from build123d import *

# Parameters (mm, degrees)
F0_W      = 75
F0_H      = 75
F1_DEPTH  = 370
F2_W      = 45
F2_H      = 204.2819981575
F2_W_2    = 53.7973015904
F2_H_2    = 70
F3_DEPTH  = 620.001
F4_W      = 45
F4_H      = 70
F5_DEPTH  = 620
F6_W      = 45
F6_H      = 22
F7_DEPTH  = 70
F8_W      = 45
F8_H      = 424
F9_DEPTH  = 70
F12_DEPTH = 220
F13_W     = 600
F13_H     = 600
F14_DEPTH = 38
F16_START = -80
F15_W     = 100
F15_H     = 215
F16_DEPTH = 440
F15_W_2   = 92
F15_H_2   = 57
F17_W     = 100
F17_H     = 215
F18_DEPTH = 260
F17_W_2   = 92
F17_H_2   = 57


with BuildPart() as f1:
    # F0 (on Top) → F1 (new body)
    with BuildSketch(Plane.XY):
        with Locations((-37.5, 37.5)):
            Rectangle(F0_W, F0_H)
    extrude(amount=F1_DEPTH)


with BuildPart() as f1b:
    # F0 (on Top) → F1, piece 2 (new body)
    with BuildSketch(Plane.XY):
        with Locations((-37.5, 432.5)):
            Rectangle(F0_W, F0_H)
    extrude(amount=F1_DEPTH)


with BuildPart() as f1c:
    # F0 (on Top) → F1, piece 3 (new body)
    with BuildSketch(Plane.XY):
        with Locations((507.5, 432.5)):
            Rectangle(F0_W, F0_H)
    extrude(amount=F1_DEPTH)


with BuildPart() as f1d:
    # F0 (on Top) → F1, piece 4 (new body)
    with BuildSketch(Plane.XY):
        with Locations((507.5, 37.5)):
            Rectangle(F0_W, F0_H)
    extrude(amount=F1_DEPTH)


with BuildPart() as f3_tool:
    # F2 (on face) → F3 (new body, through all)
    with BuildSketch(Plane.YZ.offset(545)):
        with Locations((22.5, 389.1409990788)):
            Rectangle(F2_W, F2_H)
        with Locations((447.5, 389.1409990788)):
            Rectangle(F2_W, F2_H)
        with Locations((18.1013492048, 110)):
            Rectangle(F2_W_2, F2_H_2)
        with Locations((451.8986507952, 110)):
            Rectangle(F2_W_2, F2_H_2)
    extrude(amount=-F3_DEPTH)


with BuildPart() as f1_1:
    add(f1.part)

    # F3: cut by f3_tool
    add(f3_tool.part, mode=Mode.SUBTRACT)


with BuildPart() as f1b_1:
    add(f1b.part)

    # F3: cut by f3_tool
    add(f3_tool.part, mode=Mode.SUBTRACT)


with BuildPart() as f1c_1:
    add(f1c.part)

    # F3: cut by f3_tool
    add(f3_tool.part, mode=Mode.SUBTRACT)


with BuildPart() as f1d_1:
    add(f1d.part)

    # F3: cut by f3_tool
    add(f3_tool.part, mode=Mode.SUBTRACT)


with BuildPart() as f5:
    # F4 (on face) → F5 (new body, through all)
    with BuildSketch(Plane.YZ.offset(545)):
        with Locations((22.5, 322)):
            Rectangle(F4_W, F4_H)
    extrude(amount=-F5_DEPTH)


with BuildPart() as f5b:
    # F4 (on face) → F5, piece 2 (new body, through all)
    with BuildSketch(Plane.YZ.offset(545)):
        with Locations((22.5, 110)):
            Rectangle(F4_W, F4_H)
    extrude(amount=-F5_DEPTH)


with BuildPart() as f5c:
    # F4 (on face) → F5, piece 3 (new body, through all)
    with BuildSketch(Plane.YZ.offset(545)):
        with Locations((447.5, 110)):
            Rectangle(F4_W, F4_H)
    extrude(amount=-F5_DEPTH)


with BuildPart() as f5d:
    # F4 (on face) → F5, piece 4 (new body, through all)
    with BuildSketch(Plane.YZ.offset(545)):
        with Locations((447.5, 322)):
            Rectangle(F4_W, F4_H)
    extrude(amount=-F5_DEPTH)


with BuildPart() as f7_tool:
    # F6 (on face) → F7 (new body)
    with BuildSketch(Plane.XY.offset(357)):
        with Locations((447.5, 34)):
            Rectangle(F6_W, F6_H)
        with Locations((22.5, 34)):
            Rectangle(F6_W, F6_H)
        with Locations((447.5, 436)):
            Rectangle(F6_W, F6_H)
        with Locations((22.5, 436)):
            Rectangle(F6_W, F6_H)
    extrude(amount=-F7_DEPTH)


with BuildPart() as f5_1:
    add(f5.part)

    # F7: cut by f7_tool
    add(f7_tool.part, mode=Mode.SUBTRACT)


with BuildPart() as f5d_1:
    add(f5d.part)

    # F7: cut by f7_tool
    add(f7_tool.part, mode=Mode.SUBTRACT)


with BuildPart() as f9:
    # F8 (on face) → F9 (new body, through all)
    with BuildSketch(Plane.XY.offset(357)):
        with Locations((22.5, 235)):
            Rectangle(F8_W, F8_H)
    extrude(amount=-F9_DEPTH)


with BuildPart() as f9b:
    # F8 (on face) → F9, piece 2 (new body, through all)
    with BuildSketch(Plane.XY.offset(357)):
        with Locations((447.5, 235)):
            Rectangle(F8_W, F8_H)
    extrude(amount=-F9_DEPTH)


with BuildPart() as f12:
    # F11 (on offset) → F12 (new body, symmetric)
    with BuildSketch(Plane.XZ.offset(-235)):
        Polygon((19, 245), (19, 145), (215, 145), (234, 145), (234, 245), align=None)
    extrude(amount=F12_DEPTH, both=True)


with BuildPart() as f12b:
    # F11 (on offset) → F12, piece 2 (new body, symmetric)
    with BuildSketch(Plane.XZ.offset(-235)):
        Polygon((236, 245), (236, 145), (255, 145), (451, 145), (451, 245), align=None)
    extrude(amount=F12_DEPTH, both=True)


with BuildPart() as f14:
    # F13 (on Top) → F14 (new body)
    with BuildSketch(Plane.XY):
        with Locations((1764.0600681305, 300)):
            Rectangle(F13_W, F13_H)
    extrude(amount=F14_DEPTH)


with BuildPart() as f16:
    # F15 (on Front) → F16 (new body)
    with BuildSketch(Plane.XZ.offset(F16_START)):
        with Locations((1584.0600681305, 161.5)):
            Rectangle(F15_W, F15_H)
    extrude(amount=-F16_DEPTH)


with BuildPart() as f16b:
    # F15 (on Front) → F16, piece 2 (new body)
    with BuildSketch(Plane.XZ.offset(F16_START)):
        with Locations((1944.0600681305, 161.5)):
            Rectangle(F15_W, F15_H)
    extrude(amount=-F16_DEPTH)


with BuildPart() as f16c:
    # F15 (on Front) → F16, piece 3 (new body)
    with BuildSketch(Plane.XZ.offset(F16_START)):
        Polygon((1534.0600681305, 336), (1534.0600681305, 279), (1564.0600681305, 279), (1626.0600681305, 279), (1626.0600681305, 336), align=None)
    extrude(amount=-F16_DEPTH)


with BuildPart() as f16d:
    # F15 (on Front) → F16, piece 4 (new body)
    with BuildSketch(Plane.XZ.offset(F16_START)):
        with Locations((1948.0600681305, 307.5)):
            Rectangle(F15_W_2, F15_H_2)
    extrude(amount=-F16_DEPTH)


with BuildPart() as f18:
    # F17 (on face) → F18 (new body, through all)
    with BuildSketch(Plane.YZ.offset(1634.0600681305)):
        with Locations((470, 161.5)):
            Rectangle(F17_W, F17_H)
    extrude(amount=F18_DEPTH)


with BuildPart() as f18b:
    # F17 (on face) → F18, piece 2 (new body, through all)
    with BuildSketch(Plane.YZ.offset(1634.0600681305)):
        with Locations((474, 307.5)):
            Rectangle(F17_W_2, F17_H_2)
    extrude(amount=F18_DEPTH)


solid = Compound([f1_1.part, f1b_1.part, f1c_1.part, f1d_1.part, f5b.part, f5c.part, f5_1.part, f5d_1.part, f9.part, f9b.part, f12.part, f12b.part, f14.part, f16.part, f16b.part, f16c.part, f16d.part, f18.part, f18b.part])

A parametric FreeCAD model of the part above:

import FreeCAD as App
import Part
import Sketcher
from FreeCAD import Vector
Q = App.Units.Quantity


def add_polygon(sketch, points):
    """Adds a closed chain of lines whose ends are joined by coincident constraints."""
    first, n = sketch.GeometryCount, len(points)
    for a, b in zip(points, points[1:] + points[:1]):
        sketch.addGeometry(Part.LineSegment(App.Vector(*a, 0), App.Vector(*b, 0)), False)
    for i in range(n):
        sketch.addConstraint(Sketcher.Constraint("Coincident", first + i, 2, first + (i + 1) % n, 1))

doc = App.newDocument("Part")
body = doc.addObject("PartDesign::Body", "Body")

# Sketch on XY plane
sketch1 = body.newObject("Sketcher::SketchObject", "Sketch")
sketch1.AttachmentSupport = (doc.getObject("XY_Plane"), [""])
sketch1.MapMode = "FlatFace"
add_polygon(sketch1, [(-75, 75), (-75, 0), (0, 0), (0, 75)])  # lines 0-3
sketch1.addConstraint(Sketcher.Constraint("Vertical", 0))
sketch1.addConstraint(Sketcher.Constraint("Horizontal", 1))
sketch1.addConstraint(Sketcher.Constraint("Vertical", 2))
sketch1.addConstraint(Sketcher.Constraint("Horizontal", 3))
sketch1.addConstraint(Sketcher.Constraint("Coincident", 1, 2, -1, 1))
sketch1.addConstraint(Sketcher.Constraint("Equal", 3, 0))
sketch1.addConstraint(Sketcher.Constraint("DistanceX", 1, 1, 1, 2, Q("75 mm")))
pad1 = body.newObject("PartDesign::Pad", "Pad")
pad1.Profile = sketch1
pad1.Length = 370
body2 = doc.addObject("PartDesign::Body", "Body001")

# Sketch on XY plane
sketch2 = body2.newObject("Sketcher::SketchObject", "Sketch001")
sketch2.AttachmentSupport = (doc.getObject("XY_Plane001"), [""])
sketch2.MapMode = "FlatFace"
add_polygon(sketch2, [(-75, 470), (-75, 395), (0, 395), (0, 470)])  # lines 0-3
sketch2.addConstraint(Sketcher.Constraint("Vertical", 0))
sketch2.addConstraint(Sketcher.Constraint("Horizontal", 1))
sketch2.addConstraint(Sketcher.Constraint("Vertical", 2))
sketch2.addConstraint(Sketcher.Constraint("Horizontal", 3))
sketch2.addConstraint(Sketcher.Constraint("PointOnObject", 1, 2, -2))
sketch2.addConstraint(Sketcher.Constraint("Equal", 3, 0))
sketch2.addConstraint(Sketcher.Constraint("DistanceX", 1, 1, 1, 2, Q("75 mm")))
sketch2.addConstraint(Sketcher.Constraint("DistanceY", -1, 1, 0, 2, Q("395 mm")))
pad2 = body2.newObject("PartDesign::Pad", "Pad001")
pad2.Profile = sketch2
pad2.Length = 370
body3 = doc.addObject("PartDesign::Body", "Body002")

# Sketch on XY plane
sketch3 = body3.newObject("Sketcher::SketchObject", "Sketch002")
sketch3.AttachmentSupport = (doc.getObject("XY_Plane002"), [""])
sketch3.MapMode = "FlatFace"
add_polygon(sketch3, [(470, 470), (470, 395), (545, 395), (545, 470)])  # lines 0-3
sketch3.addConstraint(Sketcher.Constraint("Vertical", 0))
sketch3.addConstraint(Sketcher.Constraint("Horizontal", 1))
sketch3.addConstraint(Sketcher.Constraint("Vertical", 2))
sketch3.addConstraint(Sketcher.Constraint("Horizontal", 3))
sketch3.addConstraint(Sketcher.Constraint("Equal", 3, 0))
sketch3.addConstraint(Sketcher.Constraint("DistanceX", 1, 1, 1, 2, Q("75 mm")))
sketch3.addConstraint(Sketcher.Constraint("DistanceX", -1, 1, 0, 2, Q("470 mm")))
sketch3.addConstraint(Sketcher.Constraint("DistanceY", -1, 1, 0, 2, Q("395 mm")))
pad3 = body3.newObject("PartDesign::Pad", "Pad002")
pad3.Profile = sketch3
pad3.Length = 370
body4 = doc.addObject("PartDesign::Body", "Body003")

# Sketch on XY plane
sketch4 = body4.newObject("Sketcher::SketchObject", "Sketch003")
sketch4.AttachmentSupport = (doc.getObject("XY_Plane003"), [""])
sketch4.MapMode = "FlatFace"
add_polygon(sketch4, [(470, 75), (470, 0), (545, 0), (545, 75)])  # lines 0-3
sketch4.addConstraint(Sketcher.Constraint("Vertical", 0))
sketch4.addConstraint(Sketcher.Constraint("Horizontal", 1))
sketch4.addConstraint(Sketcher.Constraint("Vertical", 2))
sketch4.addConstraint(Sketcher.Constraint("Horizontal", 3))
sketch4.addConstraint(Sketcher.Constraint("PointOnObject", 0, 2, -1))
sketch4.addConstraint(Sketcher.Constraint("Equal", 3, 0))
sketch4.addConstraint(Sketcher.Constraint("DistanceX", 1, 1, 1, 2, Q("75 mm")))
sketch4.addConstraint(Sketcher.Constraint("DistanceX", -1, 1, 0, 2, Q("470 mm")))
pad4 = body4.newObject("PartDesign::Pad", "Pad003")
pad4.Profile = sketch4
pad4.Length = 370
body5 = doc.addObject("PartDesign::Body", "Body004")
body5.AllowCompound = True

# Sketch on YZ plane
sketch5 = body5.newObject("Sketcher::SketchObject", "Sketch004")
sketch5.AttachmentSupport = (doc.getObject("YZ_Plane004"), [""])
sketch5.MapMode = "FlatFace"
sketch5.AttachmentOffset = App.Placement(Vector(0, 0, 545), App.Rotation())
add_polygon(sketch5, [(0, 491), (0, 287), (45, 287), (45, 491)])  # lines 0-3
add_polygon(sketch5, [(425, 491), (425, 287), (470, 287), (470, 491)])  # lines 4-7
add_polygon(sketch5, [(-9, 145), (-9, 75), (45, 75), (45, 145)])  # lines 8-11
add_polygon(sketch5, [(425, 145), (425, 75), (479, 75), (479, 145)])  # lines 12-15
sketch5.addConstraint(Sketcher.Constraint("Vertical", 0))
sketch5.addConstraint(Sketcher.Constraint("Horizontal", 1))
sketch5.addConstraint(Sketcher.Constraint("Vertical", 2))
sketch5.addConstraint(Sketcher.Constraint("Horizontal", 3))
sketch5.addConstraint(Sketcher.Constraint("Vertical", 4))
sketch5.addConstraint(Sketcher.Constraint("Horizontal", 5))
sketch5.addConstraint(Sketcher.Constraint("Vertical", 6))
sketch5.addConstraint(Sketcher.Constraint("Horizontal", 7))
sketch5.addConstraint(Sketcher.Constraint("Vertical", 8))
sketch5.addConstraint(Sketcher.Constraint("Horizontal", 9))
sketch5.addConstraint(Sketcher.Constraint("Vertical", 10))
sketch5.addConstraint(Sketcher.Constraint("Horizontal", 11))
sketch5.addConstraint(Sketcher.Constraint("Vertical", 12))
sketch5.addConstraint(Sketcher.Constraint("Horizontal", 13))
sketch5.addConstraint(Sketcher.Constraint("Vertical", 14))
sketch5.addConstraint(Sketcher.Constraint("Horizontal", 15))
sketch5.addConstraint(Sketcher.Constraint("PointOnObject", 0, 2, -2))
sketch5.addConstraint(Sketcher.Constraint("Horizontal", 1, 2, 4, 2))
sketch5.addConstraint(Sketcher.Constraint("Horizontal", 3, 2, 6, 2))
sketch5.addConstraint(Sketcher.Constraint("Horizontal", 9, 2, 12, 2))
sketch5.addConstraint(Sketcher.Constraint("Horizontal", 11, 2, 14, 2))
sketch5.addConstraint(Sketcher.Constraint("Vertical", 2, 2, 9, 2))
sketch5.addConstraint(Sketcher.Constraint("Vertical", 7, 2, 12, 2))
sketch5.addConstraint(Sketcher.Constraint("Equal", 3, 5))
sketch5.addConstraint(Sketcher.Constraint("Equal", 11, 13))
sketch5.addConstraint(Sketcher.Constraint("DistanceX", 1, 1, 1, 2, Q("45 mm")))
sketch5.addConstraint(Sketcher.Constraint("DistanceY", 8, 2, 8, 1, Q("70 mm")))
sketch5.addConstraint(Sketcher.Constraint("DistanceY", -1, 1, 0, 2, Q("287 mm")))
sketch5.addConstraint(Sketcher.Constraint("DistanceX", -1, 1, 4, 2, Q("425 mm")))
sketch5.addConstraint(Sketcher.Constraint("DistanceY", -1, 1, 8, 2, Q("75 mm")))
sketch5.addConstraint(Sketcher.Constraint("DistanceY", 0, 2, 0, 1, Q("204.281998 mm")))
sketch5.addConstraint(Sketcher.Constraint("DistanceX", 9, 1, 9, 2, Q("53.797302 mm")))
pad5 = body5.newObject("PartDesign::Pad", "Pad004")
pad5.Profile = sketch5
pad5.Length = 620.001
pad5.Reversed = True
doc.recompute()

body6 = doc.addObject("PartDesign::Body", "Body005")
body6.BaseFeature = body5
boolean = body.newObject("PartDesign::Boolean", "Boolean")
boolean.Type = "Cut"
boolean.addObjects([body6])
doc.recompute()

body7 = doc.addObject("PartDesign::Body", "Body006")
body7.BaseFeature = body5
boolean2 = body2.newObject("PartDesign::Boolean", "Boolean001")
boolean2.Type = "Cut"
boolean2.addObjects([body7])
doc.recompute()

body8 = doc.addObject("PartDesign::Body", "Body007")
body8.BaseFeature = body5
boolean3 = body3.newObject("PartDesign::Boolean", "Boolean002")
boolean3.Type = "Cut"
boolean3.addObjects([body8])
doc.recompute()

boolean4 = body4.newObject("PartDesign::Boolean", "Boolean003")
boolean4.Type = "Cut"
boolean4.addObjects([body5])
body9 = doc.addObject("PartDesign::Body", "Body008")

# Sketch on YZ plane
sketch6 = body9.newObject("Sketcher::SketchObject", "Sketch005")
sketch6.AttachmentSupport = (doc.getObject("YZ_Plane008"), [""])
sketch6.MapMode = "FlatFace"
sketch6.AttachmentOffset = App.Placement(Vector(0, 0, 545), App.Rotation())
add_polygon(sketch6, [(0, 357), (0, 287), (45, 287), (45, 357)])  # lines 0-3
sketch6.addConstraint(Sketcher.Constraint("Vertical", 0))
sketch6.addConstraint(Sketcher.Constraint("Horizontal", 1))
sketch6.addConstraint(Sketcher.Constraint("Vertical", 2))
sketch6.addConstraint(Sketcher.Constraint("Horizontal", 3))
sketch6.addConstraint(Sketcher.Constraint("PointOnObject", 0, 2, -2))
sketch6.addConstraint(Sketcher.Constraint("DistanceX", 1, 1, 1, 2, Q("45 mm")))
sketch6.addConstraint(Sketcher.Constraint("DistanceY", 0, 2, 0, 1, Q("70 mm")))
sketch6.addConstraint(Sketcher.Constraint("DistanceY", -1, 1, 0, 2, Q("287 mm")))
pad6 = body9.newObject("PartDesign::Pad", "Pad005")
pad6.Profile = sketch6
pad6.Length = 620
pad6.Reversed = True
body10 = doc.addObject("PartDesign::Body", "Body009")

# Sketch on YZ plane
sketch7 = body10.newObject("Sketcher::SketchObject", "Sketch006")
sketch7.AttachmentSupport = (doc.getObject("YZ_Plane009"), [""])
sketch7.MapMode = "FlatFace"
sketch7.AttachmentOffset = App.Placement(Vector(0, 0, 545), App.Rotation())
add_polygon(sketch7, [(0, 145), (0, 75), (45, 75), (45, 145)])  # lines 0-3
sketch7.addConstraint(Sketcher.Constraint("Vertical", 0))
sketch7.addConstraint(Sketcher.Constraint("Horizontal", 1))
sketch7.addConstraint(Sketcher.Constraint("Vertical", 2))
sketch7.addConstraint(Sketcher.Constraint("Horizontal", 3))
sketch7.addConstraint(Sketcher.Constraint("PointOnObject", 0, 2, -2))
sketch7.addConstraint(Sketcher.Constraint("DistanceX", 1, 1, 1, 2, Q("45 mm")))
sketch7.addConstraint(Sketcher.Constraint("DistanceY", 0, 2, 0, 1, Q("70 mm")))
sketch7.addConstraint(Sketcher.Constraint("DistanceY", -1, 1, 0, 2, Q("75 mm")))
pad7 = body10.newObject("PartDesign::Pad", "Pad006")
pad7.Profile = sketch7
pad7.Length = 620
pad7.Reversed = True
body11 = doc.addObject("PartDesign::Body", "Body010")

# Sketch on YZ plane
sketch8 = body11.newObject("Sketcher::SketchObject", "Sketch007")
sketch8.AttachmentSupport = (doc.getObject("YZ_Plane010"), [""])
sketch8.MapMode = "FlatFace"
sketch8.AttachmentOffset = App.Placement(Vector(0, 0, 545), App.Rotation())
add_polygon(sketch8, [(425, 145), (425, 75), (470, 75), (470, 145)])  # lines 0-3
sketch8.addConstraint(Sketcher.Constraint("Vertical", 0))
sketch8.addConstraint(Sketcher.Constraint("Horizontal", 1))
sketch8.addConstraint(Sketcher.Constraint("Vertical", 2))
sketch8.addConstraint(Sketcher.Constraint("Horizontal", 3))
sketch8.addConstraint(Sketcher.Constraint("DistanceX", 1, 1, 1, 2, Q("45 mm")))
sketch8.addConstraint(Sketcher.Constraint("DistanceY", 0, 2, 0, 1, Q("70 mm")))
sketch8.addConstraint(Sketcher.Constraint("DistanceX", -1, 1, 0, 2, Q("425 mm")))
sketch8.addConstraint(Sketcher.Constraint("DistanceY", -1, 1, 0, 2, Q("75 mm")))
pad8 = body11.newObject("PartDesign::Pad", "Pad007")
pad8.Profile = sketch8
pad8.Length = 620
pad8.Reversed = True
body12 = doc.addObject("PartDesign::Body", "Body011")

# Sketch on YZ plane
sketch9 = body12.newObject("Sketcher::SketchObject", "Sketch008")
sketch9.AttachmentSupport = (doc.getObject("YZ_Plane011"), [""])
sketch9.MapMode = "FlatFace"
sketch9.AttachmentOffset = App.Placement(Vector(0, 0, 545), App.Rotation())
add_polygon(sketch9, [(425, 357), (425, 287), (470, 287), (470, 357)])  # lines 0-3
sketch9.addConstraint(Sketcher.Constraint("Vertical", 0))
sketch9.addConstraint(Sketcher.Constraint("Horizontal", 1))
sketch9.addConstraint(Sketcher.Constraint("Vertical", 2))
sketch9.addConstraint(Sketcher.Constraint("Horizontal", 3))
sketch9.addConstraint(Sketcher.Constraint("DistanceX", 1, 1, 1, 2, Q("45 mm")))
sketch9.addConstraint(Sketcher.Constraint("DistanceY", 0, 2, 0, 1, Q("70 mm")))
sketch9.addConstraint(Sketcher.Constraint("DistanceX", -1, 1, 0, 2, Q("425 mm")))
sketch9.addConstraint(Sketcher.Constraint("DistanceY", -1, 1, 0, 2, Q("287 mm")))
pad9 = body12.newObject("PartDesign::Pad", "Pad008")
pad9.Profile = sketch9
pad9.Length = 620
pad9.Reversed = True
body13 = doc.addObject("PartDesign::Body", "Body012")
body13.AllowCompound = True

# Sketch on XY plane
sketch10 = body13.newObject("Sketcher::SketchObject", "Sketch009")
sketch10.AttachmentSupport = (doc.getObject("XY_Plane012"), [""])
sketch10.MapMode = "FlatFace"
sketch10.AttachmentOffset = App.Placement(Vector(0, 0, 357), App.Rotation())
add_polygon(sketch10, [(425, 45), (425, 23), (470, 23), (470, 45)])  # lines 0-3
add_polygon(sketch10, [(0, 45), (0, 23), (45, 23), (45, 45)])  # lines 4-7
add_polygon(sketch10, [(425, 447), (425, 425), (470, 425), (470, 447)])  # lines 8-11
add_polygon(sketch10, [(0, 447), (0, 425), (45, 425), (45, 447)])  # lines 12-15
sketch10.addConstraint(Sketcher.Constraint("Vertical", 0))
sketch10.addConstraint(Sketcher.Constraint("Horizontal", 1))
sketch10.addConstraint(Sketcher.Constraint("Vertical", 2))
sketch10.addConstraint(Sketcher.Constraint("Horizontal", 3))
sketch10.addConstraint(Sketcher.Constraint("Vertical", 4))
sketch10.addConstraint(Sketcher.Constraint("Horizontal", 5))
sketch10.addConstraint(Sketcher.Constraint("Vertical", 6))
sketch10.addConstraint(Sketcher.Constraint("Horizontal", 7))
sketch10.addConstraint(Sketcher.Constraint("Vertical", 8))
sketch10.addConstraint(Sketcher.Constraint("Horizontal", 9))
sketch10.addConstraint(Sketcher.Constraint("Vertical", 10))
sketch10.addConstraint(Sketcher.Constraint("Horizontal", 11))
sketch10.addConstraint(Sketcher.Constraint("Vertical", 12))
sketch10.addConstraint(Sketcher.Constraint("Horizontal", 13))
sketch10.addConstraint(Sketcher.Constraint("Vertical", 14))
sketch10.addConstraint(Sketcher.Constraint("Horizontal", 15))
sketch10.addConstraint(Sketcher.Constraint("PointOnObject", 4, 2, -2))
sketch10.addConstraint(Sketcher.Constraint("PointOnObject", 12, 2, -2))
sketch10.addConstraint(Sketcher.Constraint("Horizontal", 1, 2, 4, 2))
sketch10.addConstraint(Sketcher.Constraint("Horizontal", 3, 2, 6, 2))
sketch10.addConstraint(Sketcher.Constraint("Horizontal", 9, 2, 12, 2))
sketch10.addConstraint(Sketcher.Constraint("Horizontal", 11, 2, 14, 2))
sketch10.addConstraint(Sketcher.Constraint("Vertical", 3, 2, 8, 2))
sketch10.addConstraint(Sketcher.Constraint("Vertical", 2, 2, 9, 2))
sketch10.addConstraint(Sketcher.Constraint("Vertical", 6, 2, 13, 2))
sketch10.addConstraint(Sketcher.Constraint("Equal", 3, 5))
sketch10.addConstraint(Sketcher.Constraint("Equal", 6, 8))
sketch10.addConstraint(Sketcher.Constraint("DistanceX", 1, 1, 1, 2, Q("45 mm")))
sketch10.addConstraint(Sketcher.Constraint("DistanceY", 0, 2, 0, 1, Q("22 mm")))
sketch10.addConstraint(Sketcher.Constraint("DistanceX", -1, 1, 0, 2, Q("425 mm")))
sketch10.addConstraint(Sketcher.Constraint("DistanceY", -1, 1, 0, 2, Q("23 mm")))
sketch10.addConstraint(Sketcher.Constraint("DistanceY", -1, 1, 8, 2, Q("425 mm")))
pad10 = body13.newObject("PartDesign::Pad", "Pad009")
pad10.Profile = sketch10
pad10.Length = 70
pad10.Reversed = True
doc.recompute()

body14 = doc.addObject("PartDesign::Body", "Body013")
body14.BaseFeature = body13
boolean5 = body9.newObject("PartDesign::Boolean", "Boolean004")
boolean5.Type = "Cut"
boolean5.addObjects([body14])
doc.recompute()

boolean6 = body12.newObject("PartDesign::Boolean", "Boolean005")
boolean6.Type = "Cut"
boolean6.addObjects([body13])
body15 = doc.addObject("PartDesign::Body", "Body014")

# Sketch on XY plane
sketch11 = body15.newObject("Sketcher::SketchObject", "Sketch010")
sketch11.AttachmentSupport = (doc.getObject("XY_Plane014"), [""])
sketch11.MapMode = "FlatFace"
sketch11.AttachmentOffset = App.Placement(Vector(0, 0, 357), App.Rotation())
add_polygon(sketch11, [(0, 447), (0, 23), (45, 23), (45, 447)])  # lines 0-3
sketch11.addConstraint(Sketcher.Constraint("Vertical", 0))
sketch11.addConstraint(Sketcher.Constraint("Horizontal", 1))
sketch11.addConstraint(Sketcher.Constraint("Vertical", 2))
sketch11.addConstraint(Sketcher.Constraint("Horizontal", 3))
sketch11.addConstraint(Sketcher.Constraint("PointOnObject", 0, 2, -2))
sketch11.addConstraint(Sketcher.Constraint("DistanceX", 1, 1, 1, 2, Q("45 mm")))
sketch11.addConstraint(Sketcher.Constraint("DistanceY", 0, 2, 0, 1, Q("424 mm")))
sketch11.addConstraint(Sketcher.Constraint("DistanceY", -1, 1, 0, 2, Q("23 mm")))
pad11 = body15.newObject("PartDesign::Pad", "Pad010")
pad11.Profile = sketch11
pad11.Length = 70
pad11.Reversed = True
body16 = doc.addObject("PartDesign::Body", "Body015")

# Sketch on XY plane
sketch12 = body16.newObject("Sketcher::SketchObject", "Sketch011")
sketch12.AttachmentSupport = (doc.getObject("XY_Plane015"), [""])
sketch12.MapMode = "FlatFace"
sketch12.AttachmentOffset = App.Placement(Vector(0, 0, 357), App.Rotation())
add_polygon(sketch12, [(425, 447), (425, 23), (470, 23), (470, 447)])  # lines 0-3
sketch12.addConstraint(Sketcher.Constraint("Vertical", 0))
sketch12.addConstraint(Sketcher.Constraint("Horizontal", 1))
sketch12.addConstraint(Sketcher.Constraint("Vertical", 2))
sketch12.addConstraint(Sketcher.Constraint("Horizontal", 3))
sketch12.addConstraint(Sketcher.Constraint("DistanceX", 1, 1, 1, 2, Q("45 mm")))
sketch12.addConstraint(Sketcher.Constraint("DistanceY", 0, 2, 0, 1, Q("424 mm")))
sketch12.addConstraint(Sketcher.Constraint("DistanceX", -1, 1, 0, 2, Q("425 mm")))
sketch12.addConstraint(Sketcher.Constraint("DistanceY", -1, 1, 0, 2, Q("23 mm")))
pad12 = body16.newObject("PartDesign::Pad", "Pad011")
pad12.Profile = sketch12
pad12.Length = 70
pad12.Reversed = True
body17 = doc.addObject("PartDesign::Body", "Body016")

# Sketch on XZ plane
sketch13 = body17.newObject("Sketcher::SketchObject", "Sketch012")
sketch13.AttachmentSupport = (doc.getObject("XZ_Plane016"), [""])
sketch13.MapMode = "FlatFace"
sketch13.AttachmentOffset = App.Placement(Vector(0, 0, -235), App.Rotation())
add_polygon(sketch13, [(19, 245), (19, 145), (234, 145), (234, 245)])  # lines 0-3
sketch13.addConstraint(Sketcher.Constraint("Vertical", 0))
sketch13.addConstraint(Sketcher.Constraint("Horizontal", 1))
sketch13.addConstraint(Sketcher.Constraint("Vertical", 2))
sketch13.addConstraint(Sketcher.Constraint("Horizontal", 3))
sketch13.addConstraint(Sketcher.Constraint("DistanceX", 1, 1, 1, 2, Q("215 mm")))
sketch13.addConstraint(Sketcher.Constraint("DistanceY", 0, 2, 0, 1, Q("100 mm")))
sketch13.addConstraint(Sketcher.Constraint("DistanceX", -1, 1, 0, 2, Q("19 mm")))
sketch13.addConstraint(Sketcher.Constraint("DistanceY", -1, 1, 0, 2, Q("145 mm")))
pad13 = body17.newObject("PartDesign::Pad", "Pad012")
pad13.Profile = sketch13
pad13.Length = 440
pad13.Midplane = True
body18 = doc.addObject("PartDesign::Body", "Body017")

# Sketch on XZ plane
sketch14 = body18.newObject("Sketcher::SketchObject", "Sketch013")
sketch14.AttachmentSupport = (doc.getObject("XZ_Plane017"), [""])
sketch14.MapMode = "FlatFace"
sketch14.AttachmentOffset = App.Placement(Vector(0, 0, -235), App.Rotation())
add_polygon(sketch14, [(236, 245), (236, 145), (451, 145), (451, 245)])  # lines 0-3
sketch14.addConstraint(Sketcher.Constraint("Vertical", 0))
sketch14.addConstraint(Sketcher.Constraint("Horizontal", 1))
sketch14.addConstraint(Sketcher.Constraint("Vertical", 2))
sketch14.addConstraint(Sketcher.Constraint("Horizontal", 3))
sketch14.addConstraint(Sketcher.Constraint("DistanceX", 1, 1, 1, 2, Q("215 mm")))
sketch14.addConstraint(Sketcher.Constraint("DistanceY", 0, 2, 0, 1, Q("100 mm")))
sketch14.addConstraint(Sketcher.Constraint("DistanceX", -1, 1, 0, 2, Q("236 mm")))
sketch14.addConstraint(Sketcher.Constraint("DistanceY", -1, 1, 0, 2, Q("145 mm")))
pad14 = body18.newObject("PartDesign::Pad", "Pad013")
pad14.Profile = sketch14
pad14.Length = 440
pad14.Midplane = True
body19 = doc.addObject("PartDesign::Body", "Body018")

# Sketch on XY plane
sketch15 = body19.newObject("Sketcher::SketchObject", "Sketch014")
sketch15.AttachmentSupport = (doc.getObject("XY_Plane018"), [""])
sketch15.MapMode = "FlatFace"
add_polygon(sketch15, [(1464, 600), (1464, 0), (2064, 0), (2064, 600)])  # lines 0-3
sketch15.addConstraint(Sketcher.Constraint("Vertical", 0))
sketch15.addConstraint(Sketcher.Constraint("Horizontal", 1))
sketch15.addConstraint(Sketcher.Constraint("Vertical", 2))
sketch15.addConstraint(Sketcher.Constraint("Horizontal", 3))
sketch15.addConstraint(Sketcher.Constraint("PointOnObject", 0, 2, -1))
sketch15.addConstraint(Sketcher.Constraint("Equal", 3, 0))
sketch15.addConstraint(Sketcher.Constraint("DistanceX", 1, 1, 1, 2, Q("600 mm")))
sketch15.addConstraint(Sketcher.Constraint("DistanceX", -1, 1, 0, 2, Q("1464.060068 mm")))
pad15 = body19.newObject("PartDesign::Pad", "Pad014")
pad15.Profile = sketch15
pad15.Length = 38
body20 = doc.addObject("PartDesign::Body", "Body019")

# Sketch on XZ plane
sketch16 = body20.newObject("Sketcher::SketchObject", "Sketch015")
sketch16.AttachmentSupport = (doc.getObject("XZ_Plane019"), [""])
sketch16.MapMode = "FlatFace"
sketch16.AttachmentOffset = App.Placement(Vector(0, 0, -80), App.Rotation())
add_polygon(sketch16, [(1534, 269), (1534, 54), (1634, 54), (1634, 269)])  # lines 0-3
sketch16.addConstraint(Sketcher.Constraint("Vertical", 0))
sketch16.addConstraint(Sketcher.Constraint("Horizontal", 1))
sketch16.addConstraint(Sketcher.Constraint("Vertical", 2))
sketch16.addConstraint(Sketcher.Constraint("Horizontal", 3))
sketch16.addConstraint(Sketcher.Constraint("DistanceX", 1, 1, 1, 2, Q("100 mm")))
sketch16.addConstraint(Sketcher.Constraint("DistanceY", 0, 2, 0, 1, Q("215 mm")))
sketch16.addConstraint(Sketcher.Constraint("DistanceY", -1, 1, 0, 2, Q("54 mm")))
sketch16.addConstraint(Sketcher.Constraint("DistanceX", -1, 1, 0, 2, Q("1534.060068 mm")))
pad16 = body20.newObject("PartDesign::Pad", "Pad015")
pad16.Profile = sketch16
pad16.Length = 440
pad16.Reversed = True
body21 = doc.addObject("PartDesign::Body", "Body020")

# Sketch on XZ plane
sketch17 = body21.newObject("Sketcher::SketchObject", "Sketch016")
sketch17.AttachmentSupport = (doc.getObject("XZ_Plane020"), [""])
sketch17.MapMode = "FlatFace"
sketch17.AttachmentOffset = App.Placement(Vector(0, 0, -80), App.Rotation())
add_polygon(sketch17, [(1894, 269), (1894, 54), (1994, 54), (1994, 269)])  # lines 0-3
sketch17.addConstraint(Sketcher.Constraint("Vertical", 0))
sketch17.addConstraint(Sketcher.Constraint("Horizontal", 1))
sketch17.addConstraint(Sketcher.Constraint("Vertical", 2))
sketch17.addConstraint(Sketcher.Constraint("Horizontal", 3))
sketch17.addConstraint(Sketcher.Constraint("DistanceX", 1, 1, 1, 2, Q("100 mm")))
sketch17.addConstraint(Sketcher.Constraint("DistanceY", 0, 2, 0, 1, Q("215 mm")))
sketch17.addConstraint(Sketcher.Constraint("DistanceY", -1, 1, 0, 2, Q("54 mm")))
sketch17.addConstraint(Sketcher.Constraint("DistanceX", -1, 1, 0, 2, Q("1894.060068 mm")))
pad17 = body21.newObject("PartDesign::Pad", "Pad016")
pad17.Profile = sketch17
pad17.Length = 440
pad17.Reversed = True
body22 = doc.addObject("PartDesign::Body", "Body021")

# Sketch on XZ plane
sketch18 = body22.newObject("Sketcher::SketchObject", "Sketch017")
sketch18.AttachmentSupport = (doc.getObject("XZ_Plane021"), [""])
sketch18.MapMode = "FlatFace"
sketch18.AttachmentOffset = App.Placement(Vector(0, 0, -80), App.Rotation())
add_polygon(sketch18, [(1534, 336), (1534, 279), (1626, 279), (1626, 336)])  # lines 0-3
sketch18.addConstraint(Sketcher.Constraint("Vertical", 0))
sketch18.addConstraint(Sketcher.Constraint("Horizontal", 1))
sketch18.addConstraint(Sketcher.Constraint("Vertical", 2))
sketch18.addConstraint(Sketcher.Constraint("Horizontal", 3))
sketch18.addConstraint(Sketcher.Constraint("DistanceX", 1, 1, 1, 2, Q("92 mm")))
sketch18.addConstraint(Sketcher.Constraint("DistanceY", 0, 2, 0, 1, Q("57 mm")))
sketch18.addConstraint(Sketcher.Constraint("DistanceY", -1, 1, 0, 2, Q("279 mm")))
sketch18.addConstraint(Sketcher.Constraint("DistanceX", -1, 1, 0, 2, Q("1534.060068 mm")))
pad18 = body22.newObject("PartDesign::Pad", "Pad017")
pad18.Profile = sketch18
pad18.Length = 440
pad18.Reversed = True
body23 = doc.addObject("PartDesign::Body", "Body022")

# Sketch on XZ plane
sketch19 = body23.newObject("Sketcher::SketchObject", "Sketch018")
sketch19.AttachmentSupport = (doc.getObject("XZ_Plane022"), [""])
sketch19.MapMode = "FlatFace"
sketch19.AttachmentOffset = App.Placement(Vector(0, 0, -80), App.Rotation())
add_polygon(sketch19, [(1902, 336), (1902, 279), (1994, 279), (1994, 336)])  # lines 0-3
sketch19.addConstraint(Sketcher.Constraint("Vertical", 0))
sketch19.addConstraint(Sketcher.Constraint("Horizontal", 1))
sketch19.addConstraint(Sketcher.Constraint("Vertical", 2))
sketch19.addConstraint(Sketcher.Constraint("Horizontal", 3))
sketch19.addConstraint(Sketcher.Constraint("DistanceX", 1, 1, 1, 2, Q("92 mm")))
sketch19.addConstraint(Sketcher.Constraint("DistanceY", 0, 2, 0, 1, Q("57 mm")))
sketch19.addConstraint(Sketcher.Constraint("DistanceY", -1, 1, 0, 2, Q("279 mm")))
sketch19.addConstraint(Sketcher.Constraint("DistanceX", -1, 1, 0, 2, Q("1902.060068 mm")))
pad19 = body23.newObject("PartDesign::Pad", "Pad018")
pad19.Profile = sketch19
pad19.Length = 440
pad19.Reversed = True
body24 = doc.addObject("PartDesign::Body", "Body023")

# Sketch on YZ plane
sketch20 = body24.newObject("Sketcher::SketchObject", "Sketch019")
sketch20.AttachmentSupport = (doc.getObject("YZ_Plane023"), [""])
sketch20.MapMode = "FlatFace"
sketch20.AttachmentOffset = App.Placement(Vector(0, 0, 1634.060068), App.Rotation())
add_polygon(sketch20, [(420, 269), (420, 54), (520, 54), (520, 269)])  # lines 0-3
sketch20.addConstraint(Sketcher.Constraint("Vertical", 0))
sketch20.addConstraint(Sketcher.Constraint("Horizontal", 1))
sketch20.addConstraint(Sketcher.Constraint("Vertical", 2))
sketch20.addConstraint(Sketcher.Constraint("Horizontal", 3))
sketch20.addConstraint(Sketcher.Constraint("DistanceX", 1, 1, 1, 2, Q("100 mm")))
sketch20.addConstraint(Sketcher.Constraint("DistanceY", 0, 2, 0, 1, Q("215 mm")))
sketch20.addConstraint(Sketcher.Constraint("DistanceX", -1, 1, 0, 2, Q("420 mm")))
sketch20.addConstraint(Sketcher.Constraint("DistanceY", -1, 1, 0, 2, Q("54 mm")))
pad20 = body24.newObject("PartDesign::Pad", "Pad019")
pad20.Profile = sketch20
pad20.Length = 260
body25 = doc.addObject("PartDesign::Body", "Body024")

# Sketch on YZ plane
sketch21 = body25.newObject("Sketcher::SketchObject", "Sketch020")
sketch21.AttachmentSupport = (doc.getObject("YZ_Plane024"), [""])
sketch21.MapMode = "FlatFace"
sketch21.AttachmentOffset = App.Placement(Vector(0, 0, 1634.060068), App.Rotation())
add_polygon(sketch21, [(428, 336), (428, 279), (520, 279), (520, 336)])  # lines 0-3
sketch21.addConstraint(Sketcher.Constraint("Vertical", 0))
sketch21.addConstraint(Sketcher.Constraint("Horizontal", 1))
sketch21.addConstraint(Sketcher.Constraint("Vertical", 2))
sketch21.addConstraint(Sketcher.Constraint("Horizontal", 3))
sketch21.addConstraint(Sketcher.Constraint("DistanceX", 1, 1, 1, 2, Q("92 mm")))
sketch21.addConstraint(Sketcher.Constraint("DistanceY", 0, 2, 0, 1, Q("57 mm")))
sketch21.addConstraint(Sketcher.Constraint("DistanceX", -1, 1, 0, 2, Q("428 mm")))
sketch21.addConstraint(Sketcher.Constraint("DistanceY", -1, 1, 0, 2, Q("279 mm")))
pad21 = body25.newObject("PartDesign::Pad", "Pad020")
pad21.Profile = sketch21
pad21.Length = 260

doc.recompute()
